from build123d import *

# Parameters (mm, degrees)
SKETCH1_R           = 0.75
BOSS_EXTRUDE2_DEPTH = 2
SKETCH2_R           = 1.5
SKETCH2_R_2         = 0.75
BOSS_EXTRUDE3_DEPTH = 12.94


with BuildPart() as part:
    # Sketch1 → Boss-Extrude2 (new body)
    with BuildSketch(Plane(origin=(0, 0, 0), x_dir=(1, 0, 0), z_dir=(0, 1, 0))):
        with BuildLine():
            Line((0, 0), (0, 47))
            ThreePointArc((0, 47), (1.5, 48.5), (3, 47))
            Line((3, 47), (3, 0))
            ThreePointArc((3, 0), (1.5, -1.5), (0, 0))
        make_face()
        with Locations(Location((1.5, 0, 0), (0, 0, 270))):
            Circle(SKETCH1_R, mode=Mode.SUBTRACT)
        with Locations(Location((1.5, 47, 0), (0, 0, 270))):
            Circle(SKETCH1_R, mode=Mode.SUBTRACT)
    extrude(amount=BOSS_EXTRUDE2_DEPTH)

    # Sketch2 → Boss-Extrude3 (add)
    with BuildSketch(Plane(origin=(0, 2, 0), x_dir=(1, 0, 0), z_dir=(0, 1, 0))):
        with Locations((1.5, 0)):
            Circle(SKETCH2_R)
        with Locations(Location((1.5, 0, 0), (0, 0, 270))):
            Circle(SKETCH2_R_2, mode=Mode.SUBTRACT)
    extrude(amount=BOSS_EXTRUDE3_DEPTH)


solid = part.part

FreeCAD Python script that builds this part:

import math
import FreeCAD as App
import Part
import Sketcher
from FreeCAD import Vector
Q = App.Units.Quantity

doc = App.newDocument("Part")
body = doc.addObject("PartDesign::Body", "Body")

sketch1 = doc.addObject("Sketcher::SketchObject", "Sketch")
body.addObject(sketch1)
sketch1.AttachmentSupport = (doc.XZ_Plane, [""])
sketch1.MapMode = "FlatFace"
sketch1.addGeometry([
    Part.LineSegment(Vector(0, -47, 0), Vector(0, 0, 0)),
    Part.ArcOfCircle(Part.Circle(Vector(1.5, 0, 0), Vector(0, 0, 1), 1.5), math.radians(0), math.radians(180)),
    Part.LineSegment(Vector(3, 0, 0), Vector(3, -47, 0)),
    Part.ArcOfCircle(Part.Circle(Vector(1.5, -47, 0), Vector(0, 0, 1), 1.5), math.radians(180), math.radians(360)),
    Part.Circle(Vector(1.5, 0, 0), Vector(0, 0, 1), 0.8),
    Part.Circle(Vector(1.5, -47, 0), Vector(0, 0, 1), 0.8),
], False)
sketch1.addConstraint([
    Sketcher.Constraint("Tangent", 0, 2, 1, 2),
    Sketcher.Constraint("Tangent", 1, 1, 2, 1),
    Sketcher.Constraint("Tangent", 2, 2, 3, 2),
    Sketcher.Constraint("Tangent", 3, 1, 0, 1),
    Sketcher.Constraint("Vertical", 0),
    Sketcher.Constraint("Vertical", 2),
    Sketcher.Constraint("Coincident", 0, 2, -1, 1),
    Sketcher.Constraint("Coincident", 4, 3, 1, 3),
    Sketcher.Constraint("Coincident", 5, 3, 3, 3),
    Sketcher.Constraint("Equal", 4, 5),
    Sketcher.Constraint("Diameter", 4, Q("1.5 mm")),
    Sketcher.Constraint("Radius", 1, Q("1.5 mm")),
    Sketcher.Constraint("DistanceY", 0, 1, 0, 2, Q("47 mm")),
])
pad1 = doc.addObject("PartDesign::Pad", "Pad")
body.addObject(pad1)
pad1.Profile = sketch1
pad1.Length = 2
pad1.Reversed = True

sketch2 = doc.addObject("Sketcher::SketchObject", "Sketch001")
body.addObject(sketch2)
sketch2.AttachmentSupport = (doc.XZ_Plane, [""])
sketch2.MapMode = "FlatFace"
sketch2.AttachmentOffset = App.Placement(Vector(0, 0, -2), App.Rotation())
sketch2.addGeometry([
    Part.Circle(Vector(1.5, 0, 0), Vector(0, 0, 1), 1.5),
    Part.Circle(Vector(1.5, 0, 0), Vector(0, 0, 1), 0.8),
], False)
sketch2.addConstraint([
    Sketcher.Constraint("Coincident", 1, 3, 0, 3),
    Sketcher.Constraint("PointOnObject", 0, 3, -1),
    Sketcher.Constraint("Diameter", 0, Q("3 mm")),
    Sketcher.Constraint("Diameter", 1, Q("1.5 mm")),
    Sketcher.Constraint("DistanceX", -1, 1, 0, 3, Q("1.5 mm")),
])
pad2 = doc.addObject("PartDesign::Pad", "Pad001")
body.addObject(pad2)
pad2.Profile = sketch2
pad2.Length = 12.94
pad2.Reversed = True

doc.recompute()
